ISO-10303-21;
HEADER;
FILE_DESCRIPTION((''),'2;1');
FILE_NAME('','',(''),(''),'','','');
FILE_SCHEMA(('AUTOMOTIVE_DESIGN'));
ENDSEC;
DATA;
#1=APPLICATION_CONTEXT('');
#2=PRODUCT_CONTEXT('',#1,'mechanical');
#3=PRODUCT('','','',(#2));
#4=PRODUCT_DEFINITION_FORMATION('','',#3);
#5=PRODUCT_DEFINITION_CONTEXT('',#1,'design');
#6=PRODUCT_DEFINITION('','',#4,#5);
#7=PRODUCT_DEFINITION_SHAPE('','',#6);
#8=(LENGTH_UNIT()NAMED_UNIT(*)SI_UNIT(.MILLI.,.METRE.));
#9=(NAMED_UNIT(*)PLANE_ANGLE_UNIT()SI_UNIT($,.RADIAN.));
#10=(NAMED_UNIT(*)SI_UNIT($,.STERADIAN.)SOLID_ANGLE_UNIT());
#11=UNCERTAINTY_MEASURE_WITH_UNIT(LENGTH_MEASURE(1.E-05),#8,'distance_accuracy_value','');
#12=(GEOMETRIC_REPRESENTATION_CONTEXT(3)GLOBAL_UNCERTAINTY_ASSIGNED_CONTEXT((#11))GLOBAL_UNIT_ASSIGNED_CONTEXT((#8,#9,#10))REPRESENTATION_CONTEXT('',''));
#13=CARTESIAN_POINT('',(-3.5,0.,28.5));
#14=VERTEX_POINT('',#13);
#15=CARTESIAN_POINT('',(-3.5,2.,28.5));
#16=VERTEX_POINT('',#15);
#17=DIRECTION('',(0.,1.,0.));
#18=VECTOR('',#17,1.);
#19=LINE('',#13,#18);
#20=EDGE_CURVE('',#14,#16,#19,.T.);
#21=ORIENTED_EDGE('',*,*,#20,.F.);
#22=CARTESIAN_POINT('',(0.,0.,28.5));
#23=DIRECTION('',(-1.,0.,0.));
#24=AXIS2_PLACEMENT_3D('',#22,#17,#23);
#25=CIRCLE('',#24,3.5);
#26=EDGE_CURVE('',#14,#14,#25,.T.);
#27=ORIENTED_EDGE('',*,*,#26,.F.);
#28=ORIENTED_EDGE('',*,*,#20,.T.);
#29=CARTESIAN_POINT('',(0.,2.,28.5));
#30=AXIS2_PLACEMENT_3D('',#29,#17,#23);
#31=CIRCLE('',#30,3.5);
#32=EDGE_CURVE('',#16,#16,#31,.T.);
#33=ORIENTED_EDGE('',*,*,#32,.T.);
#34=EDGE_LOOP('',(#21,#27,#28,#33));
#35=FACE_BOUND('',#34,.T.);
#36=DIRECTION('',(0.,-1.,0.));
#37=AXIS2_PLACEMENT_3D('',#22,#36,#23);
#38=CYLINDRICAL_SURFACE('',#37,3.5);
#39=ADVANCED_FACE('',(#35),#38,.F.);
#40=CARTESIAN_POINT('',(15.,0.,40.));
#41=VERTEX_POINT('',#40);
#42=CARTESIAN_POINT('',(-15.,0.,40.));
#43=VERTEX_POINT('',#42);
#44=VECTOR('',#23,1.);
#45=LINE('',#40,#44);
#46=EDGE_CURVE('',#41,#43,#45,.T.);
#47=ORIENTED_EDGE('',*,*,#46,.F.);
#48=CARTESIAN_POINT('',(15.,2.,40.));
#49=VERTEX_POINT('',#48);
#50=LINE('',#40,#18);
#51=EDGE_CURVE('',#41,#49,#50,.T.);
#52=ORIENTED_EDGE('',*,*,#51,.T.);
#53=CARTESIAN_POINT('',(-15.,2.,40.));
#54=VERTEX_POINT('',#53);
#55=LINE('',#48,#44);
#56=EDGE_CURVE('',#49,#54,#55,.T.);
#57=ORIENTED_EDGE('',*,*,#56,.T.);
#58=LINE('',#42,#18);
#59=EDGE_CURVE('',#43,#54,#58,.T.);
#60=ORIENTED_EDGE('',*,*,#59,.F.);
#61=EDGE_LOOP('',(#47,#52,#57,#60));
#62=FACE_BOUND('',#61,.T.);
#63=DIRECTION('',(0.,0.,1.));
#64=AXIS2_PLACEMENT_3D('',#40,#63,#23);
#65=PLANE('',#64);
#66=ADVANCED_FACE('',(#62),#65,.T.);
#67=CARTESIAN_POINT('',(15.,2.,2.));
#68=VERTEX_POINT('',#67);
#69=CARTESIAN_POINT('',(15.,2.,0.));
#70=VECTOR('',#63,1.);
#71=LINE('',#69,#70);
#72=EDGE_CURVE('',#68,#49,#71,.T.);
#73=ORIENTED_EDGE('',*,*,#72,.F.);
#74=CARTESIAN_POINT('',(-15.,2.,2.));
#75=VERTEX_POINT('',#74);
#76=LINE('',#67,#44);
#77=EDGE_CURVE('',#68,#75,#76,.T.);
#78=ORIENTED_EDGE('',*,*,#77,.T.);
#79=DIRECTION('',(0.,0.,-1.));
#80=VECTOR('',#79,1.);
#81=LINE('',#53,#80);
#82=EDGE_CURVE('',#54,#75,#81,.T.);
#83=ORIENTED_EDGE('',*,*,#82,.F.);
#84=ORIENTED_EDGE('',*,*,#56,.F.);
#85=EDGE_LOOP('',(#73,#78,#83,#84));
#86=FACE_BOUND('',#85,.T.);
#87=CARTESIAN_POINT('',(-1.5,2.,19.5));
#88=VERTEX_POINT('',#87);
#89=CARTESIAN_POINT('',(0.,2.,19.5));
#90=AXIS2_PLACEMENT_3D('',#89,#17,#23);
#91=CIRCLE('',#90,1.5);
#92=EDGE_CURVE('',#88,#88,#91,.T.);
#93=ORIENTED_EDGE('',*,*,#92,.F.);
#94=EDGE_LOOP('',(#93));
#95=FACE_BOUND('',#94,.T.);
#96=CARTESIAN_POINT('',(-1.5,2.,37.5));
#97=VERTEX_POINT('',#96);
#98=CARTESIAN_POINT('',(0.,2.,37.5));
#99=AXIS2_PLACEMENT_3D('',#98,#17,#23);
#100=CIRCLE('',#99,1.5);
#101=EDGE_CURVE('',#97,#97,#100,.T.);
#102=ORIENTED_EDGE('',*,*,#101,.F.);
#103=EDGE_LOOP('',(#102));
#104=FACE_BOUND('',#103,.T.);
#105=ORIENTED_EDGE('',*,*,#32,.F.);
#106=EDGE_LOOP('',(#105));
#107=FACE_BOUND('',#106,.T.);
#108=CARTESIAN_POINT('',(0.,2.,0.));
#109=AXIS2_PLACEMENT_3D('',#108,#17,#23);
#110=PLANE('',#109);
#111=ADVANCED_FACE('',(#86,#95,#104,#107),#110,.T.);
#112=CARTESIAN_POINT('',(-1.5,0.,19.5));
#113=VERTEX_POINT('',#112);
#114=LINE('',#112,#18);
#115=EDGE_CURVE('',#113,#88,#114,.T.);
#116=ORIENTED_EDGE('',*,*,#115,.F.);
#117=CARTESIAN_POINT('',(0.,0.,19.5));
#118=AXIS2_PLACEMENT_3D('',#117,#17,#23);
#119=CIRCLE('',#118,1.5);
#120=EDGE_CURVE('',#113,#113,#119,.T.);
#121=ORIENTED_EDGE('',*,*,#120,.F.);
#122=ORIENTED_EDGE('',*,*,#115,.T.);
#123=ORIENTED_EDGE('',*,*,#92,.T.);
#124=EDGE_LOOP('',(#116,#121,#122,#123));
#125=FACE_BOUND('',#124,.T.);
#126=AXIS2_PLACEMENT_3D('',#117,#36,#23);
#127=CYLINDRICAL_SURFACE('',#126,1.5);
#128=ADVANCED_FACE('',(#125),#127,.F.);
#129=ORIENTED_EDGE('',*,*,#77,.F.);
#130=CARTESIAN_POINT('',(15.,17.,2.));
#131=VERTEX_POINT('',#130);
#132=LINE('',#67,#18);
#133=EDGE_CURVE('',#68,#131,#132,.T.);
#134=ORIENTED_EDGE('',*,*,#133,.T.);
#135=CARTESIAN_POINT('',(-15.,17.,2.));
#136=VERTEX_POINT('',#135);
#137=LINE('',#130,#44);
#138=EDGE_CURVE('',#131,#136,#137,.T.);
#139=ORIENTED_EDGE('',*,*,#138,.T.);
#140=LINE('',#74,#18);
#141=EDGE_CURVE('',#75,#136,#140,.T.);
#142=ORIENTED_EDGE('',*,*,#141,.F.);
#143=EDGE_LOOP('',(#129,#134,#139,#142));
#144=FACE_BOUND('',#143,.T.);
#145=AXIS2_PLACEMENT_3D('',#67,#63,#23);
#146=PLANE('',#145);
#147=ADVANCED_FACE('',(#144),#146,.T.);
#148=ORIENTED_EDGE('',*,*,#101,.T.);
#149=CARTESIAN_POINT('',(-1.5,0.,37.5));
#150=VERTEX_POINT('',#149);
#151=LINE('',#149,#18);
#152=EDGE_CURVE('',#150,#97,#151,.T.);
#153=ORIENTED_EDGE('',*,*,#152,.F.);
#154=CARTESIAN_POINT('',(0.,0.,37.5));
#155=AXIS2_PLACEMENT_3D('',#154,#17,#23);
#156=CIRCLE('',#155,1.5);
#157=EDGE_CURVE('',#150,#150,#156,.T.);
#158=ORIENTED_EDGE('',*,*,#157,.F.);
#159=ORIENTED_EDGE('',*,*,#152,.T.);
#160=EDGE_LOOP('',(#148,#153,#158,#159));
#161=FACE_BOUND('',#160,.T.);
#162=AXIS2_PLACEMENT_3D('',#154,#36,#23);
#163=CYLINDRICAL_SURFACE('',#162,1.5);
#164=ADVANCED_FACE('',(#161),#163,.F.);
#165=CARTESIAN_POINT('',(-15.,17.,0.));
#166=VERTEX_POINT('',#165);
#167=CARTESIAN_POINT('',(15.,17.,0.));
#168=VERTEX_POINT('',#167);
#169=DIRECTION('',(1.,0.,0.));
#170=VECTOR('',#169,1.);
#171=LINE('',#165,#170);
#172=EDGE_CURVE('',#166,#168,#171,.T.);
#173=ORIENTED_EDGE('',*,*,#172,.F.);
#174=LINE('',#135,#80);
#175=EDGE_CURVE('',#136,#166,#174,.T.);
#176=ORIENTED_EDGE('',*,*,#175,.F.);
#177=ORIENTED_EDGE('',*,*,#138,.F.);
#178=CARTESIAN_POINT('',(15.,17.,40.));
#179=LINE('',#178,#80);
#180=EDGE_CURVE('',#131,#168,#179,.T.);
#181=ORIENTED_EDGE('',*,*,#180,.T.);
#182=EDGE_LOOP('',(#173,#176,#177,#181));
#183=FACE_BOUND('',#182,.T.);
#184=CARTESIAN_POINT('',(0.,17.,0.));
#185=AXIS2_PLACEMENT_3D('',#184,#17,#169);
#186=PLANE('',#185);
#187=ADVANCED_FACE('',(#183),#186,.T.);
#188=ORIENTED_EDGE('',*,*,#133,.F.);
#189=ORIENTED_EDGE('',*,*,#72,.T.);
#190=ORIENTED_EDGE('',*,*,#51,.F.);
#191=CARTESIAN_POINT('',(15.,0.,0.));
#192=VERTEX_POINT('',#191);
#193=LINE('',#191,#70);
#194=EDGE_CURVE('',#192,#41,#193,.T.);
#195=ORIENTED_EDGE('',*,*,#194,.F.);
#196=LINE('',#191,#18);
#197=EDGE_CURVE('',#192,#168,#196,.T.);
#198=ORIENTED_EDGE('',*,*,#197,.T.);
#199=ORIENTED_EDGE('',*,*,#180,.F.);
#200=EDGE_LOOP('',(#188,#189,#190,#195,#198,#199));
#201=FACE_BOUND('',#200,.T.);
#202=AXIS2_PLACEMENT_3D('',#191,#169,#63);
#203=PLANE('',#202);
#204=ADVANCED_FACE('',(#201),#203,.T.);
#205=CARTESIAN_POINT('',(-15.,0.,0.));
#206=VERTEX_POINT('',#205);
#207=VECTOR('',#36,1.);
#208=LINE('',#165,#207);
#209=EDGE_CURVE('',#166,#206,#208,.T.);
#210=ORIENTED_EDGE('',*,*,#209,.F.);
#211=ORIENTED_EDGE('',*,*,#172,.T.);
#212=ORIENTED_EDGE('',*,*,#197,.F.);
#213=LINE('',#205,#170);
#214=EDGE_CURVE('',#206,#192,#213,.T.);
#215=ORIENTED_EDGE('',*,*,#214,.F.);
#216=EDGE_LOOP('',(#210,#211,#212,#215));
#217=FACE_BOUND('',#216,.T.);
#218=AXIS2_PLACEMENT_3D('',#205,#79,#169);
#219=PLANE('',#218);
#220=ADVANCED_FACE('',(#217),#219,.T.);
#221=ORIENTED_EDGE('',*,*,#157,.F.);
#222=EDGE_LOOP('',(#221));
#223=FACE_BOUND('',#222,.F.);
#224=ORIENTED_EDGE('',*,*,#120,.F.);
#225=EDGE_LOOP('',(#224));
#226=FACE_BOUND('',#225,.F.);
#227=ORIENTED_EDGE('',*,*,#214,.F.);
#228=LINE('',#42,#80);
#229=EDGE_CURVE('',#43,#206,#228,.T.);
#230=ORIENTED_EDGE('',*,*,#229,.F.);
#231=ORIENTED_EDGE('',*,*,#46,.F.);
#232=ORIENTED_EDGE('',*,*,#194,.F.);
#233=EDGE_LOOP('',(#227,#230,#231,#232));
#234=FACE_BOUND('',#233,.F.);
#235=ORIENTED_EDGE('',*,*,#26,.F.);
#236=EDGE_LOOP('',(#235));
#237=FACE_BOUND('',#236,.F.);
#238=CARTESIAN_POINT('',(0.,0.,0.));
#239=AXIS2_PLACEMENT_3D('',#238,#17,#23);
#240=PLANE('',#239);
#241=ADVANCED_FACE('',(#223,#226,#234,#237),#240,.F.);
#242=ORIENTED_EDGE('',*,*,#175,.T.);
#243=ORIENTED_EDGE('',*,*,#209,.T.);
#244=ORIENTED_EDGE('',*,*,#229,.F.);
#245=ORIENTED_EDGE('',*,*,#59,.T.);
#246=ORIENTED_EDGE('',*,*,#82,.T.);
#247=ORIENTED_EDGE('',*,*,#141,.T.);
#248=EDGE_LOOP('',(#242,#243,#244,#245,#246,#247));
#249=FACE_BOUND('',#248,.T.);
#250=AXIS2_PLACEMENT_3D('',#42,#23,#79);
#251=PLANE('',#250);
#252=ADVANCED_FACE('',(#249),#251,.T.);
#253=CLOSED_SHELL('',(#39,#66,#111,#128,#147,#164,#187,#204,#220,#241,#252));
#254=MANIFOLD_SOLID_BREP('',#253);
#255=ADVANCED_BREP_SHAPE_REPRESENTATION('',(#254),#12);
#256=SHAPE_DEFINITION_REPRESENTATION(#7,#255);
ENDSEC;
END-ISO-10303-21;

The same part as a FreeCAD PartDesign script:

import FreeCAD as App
import Part
import Sketcher
from FreeCAD import Vector
Q = App.Units.Quantity


def add_polygon(sketch, points):
    """Adds a closed chain of lines whose ends are joined by coincident constraints."""
    first, n = sketch.GeometryCount, len(points)
    for a, b in zip(points, points[1:] + points[:1]):
        sketch.addGeometry(Part.LineSegment(App.Vector(*a, 0), App.Vector(*b, 0)), False)
    for i in range(n):
        sketch.addConstraint(Sketcher.Constraint("Coincident", first + i, 2, first + (i + 1) % n, 1))

doc = App.newDocument("Part")
body = doc.addObject("PartDesign::Body", "Body")

sketch1 = doc.addObject("Sketcher::SketchObject", "Sketch")
body.addObject(sketch1)
sketch1.AttachmentSupport = (doc.XZ_Plane, [""])
sketch1.MapMode = "FlatFace"
add_polygon(sketch1, [(-15, 40), (15, 40), (15, 0), (-15, 0)])
sketch1.addGeometry(Part.Circle(Vector(0, 19.5, 0), Vector(0, 0, 1), 1.5), False)
sketch1.addGeometry(Part.Circle(Vector(0, 28.5, 0), Vector(0, 0, 1), 3.5), False)
sketch1.addGeometry(Part.Circle(Vector(0, 37.5, 0), Vector(0, 0, 1), 1.5), False)
sketch1.addConstraint(Sketcher.Constraint("Horizontal", 0))
sketch1.addConstraint(Sketcher.Constraint("Vertical", 1))
sketch1.addConstraint(Sketcher.Constraint("Horizontal", 2))
sketch1.addConstraint(Sketcher.Constraint("Vertical", 3))
sketch1.addConstraint(Sketcher.Constraint("Equal", 4, 6))
sketch1.addConstraint(Sketcher.Constraint("Symmetric", 1, 2, 2, 2, -1, 1))
sketch1.addConstraint(Sketcher.Constraint("PointOnObject", 4, 3, -2))
sketch1.addConstraint(Sketcher.Constraint("PointOnObject", 5, 3, -2))
sketch1.addConstraint(Sketcher.Constraint("PointOnObject", 6, 3, -2))
sketch1.addConstraint(Sketcher.Constraint("Diameter", 4, Q("3 mm")))
sketch1.addConstraint(Sketcher.Constraint("Diameter", 5, Q("7 mm")))
sketch1.addConstraint(Sketcher.Constraint("DistanceX", 0, 1, 0, 2, Q("30 mm")))
sketch1.addConstraint(Sketcher.Constraint("DistanceY", 1, 2, 1, 1, Q("40 mm")))
sketch1.addConstraint(Sketcher.Constraint("DistanceY", 4, 3, 5, 3, Q("9 mm")))
sketch1.addConstraint(Sketcher.Constraint("DistanceY", 5, 3, 6, 3, Q("9 mm")))
sketch1.addConstraint(Sketcher.Constraint("DistanceY", -1, 1, 5, 3, Q("28.5 mm")))
pad1 = doc.addObject("PartDesign::Pad", "Pad")
body.addObject(pad1)
pad1.Profile = sketch1
pad1.Length = 2
pad1.Reversed = True

sketch2 = doc.addObject("Sketcher::SketchObject", "Sketch001")
body.addObject(sketch2)
sketch2.AttachmentSupport = (doc.XZ_Plane, [""])
sketch2.MapMode = "FlatFace"
sketch2.AttachmentOffset = App.Placement(Vector(0, 0, -2), App.Rotation())
add_polygon(sketch2, [(-15, 2), (15, 2), (15, 0), (-15, 0)])
sketch2.addConstraint(Sketcher.Constraint("Horizontal", 0))
sketch2.addConstraint(Sketcher.Constraint("Vertical", 1))
sketch2.addConstraint(Sketcher.Constraint("Horizontal", 2))
sketch2.addConstraint(Sketcher.Constraint("Vertical", 3))
sketch2.addConstraint(Sketcher.Constraint("Symmetric", 1, 2, 2, 2, -1, 1))
sketch2.addConstraint(Sketcher.Constraint("DistanceY", 1, 2, 1, 1, Q("2 mm")))
sketch2.addConstraint(Sketcher.Constraint("DistanceX", 0, 1, 0, 2, Q("30 mm")))
pad2 = doc.addObject("PartDesign::Pad", "Pad001")
body.addObject(pad2)
pad2.Profile = sketch2
pad2.Length = 15
pad2.Reversed = True

doc.recompute()
